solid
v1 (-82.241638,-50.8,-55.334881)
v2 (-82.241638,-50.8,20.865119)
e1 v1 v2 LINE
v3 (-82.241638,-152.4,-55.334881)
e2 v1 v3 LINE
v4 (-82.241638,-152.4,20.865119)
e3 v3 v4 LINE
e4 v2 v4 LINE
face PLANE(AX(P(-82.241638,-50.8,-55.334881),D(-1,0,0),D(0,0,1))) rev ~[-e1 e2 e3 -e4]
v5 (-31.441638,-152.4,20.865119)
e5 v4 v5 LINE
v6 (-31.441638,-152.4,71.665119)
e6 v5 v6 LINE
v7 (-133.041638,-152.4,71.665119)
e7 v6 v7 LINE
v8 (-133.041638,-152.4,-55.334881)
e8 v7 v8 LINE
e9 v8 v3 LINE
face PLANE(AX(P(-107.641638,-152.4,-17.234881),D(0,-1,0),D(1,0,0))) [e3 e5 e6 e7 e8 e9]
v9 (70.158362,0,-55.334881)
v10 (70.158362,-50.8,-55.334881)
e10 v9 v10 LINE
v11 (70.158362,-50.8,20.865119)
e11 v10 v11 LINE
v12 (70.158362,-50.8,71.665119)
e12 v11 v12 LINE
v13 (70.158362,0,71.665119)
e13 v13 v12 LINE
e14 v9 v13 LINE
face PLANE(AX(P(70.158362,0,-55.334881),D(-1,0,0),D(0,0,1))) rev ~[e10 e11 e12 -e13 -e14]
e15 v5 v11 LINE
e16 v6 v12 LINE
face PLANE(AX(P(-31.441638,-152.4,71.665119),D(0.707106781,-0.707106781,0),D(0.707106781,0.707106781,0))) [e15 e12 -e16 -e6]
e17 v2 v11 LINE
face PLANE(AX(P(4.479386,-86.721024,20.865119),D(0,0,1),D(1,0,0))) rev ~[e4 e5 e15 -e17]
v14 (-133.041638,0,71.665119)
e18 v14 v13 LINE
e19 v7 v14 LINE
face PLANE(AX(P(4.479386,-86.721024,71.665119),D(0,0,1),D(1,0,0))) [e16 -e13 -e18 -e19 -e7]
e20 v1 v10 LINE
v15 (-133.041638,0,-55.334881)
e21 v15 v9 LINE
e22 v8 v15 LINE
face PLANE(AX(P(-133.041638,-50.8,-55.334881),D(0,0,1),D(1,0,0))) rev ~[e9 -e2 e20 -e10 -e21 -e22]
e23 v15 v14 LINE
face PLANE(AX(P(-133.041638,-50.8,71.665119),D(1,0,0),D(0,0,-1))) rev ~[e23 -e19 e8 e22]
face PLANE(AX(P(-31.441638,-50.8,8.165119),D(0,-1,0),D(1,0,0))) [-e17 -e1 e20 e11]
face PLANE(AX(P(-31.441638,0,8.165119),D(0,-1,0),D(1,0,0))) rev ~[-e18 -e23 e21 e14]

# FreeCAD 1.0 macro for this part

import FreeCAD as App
import Part
import Sketcher
Q = App.Units.Quantity


def add_polygon(sketch, points):
    """Adds a closed chain of lines whose ends are joined by coincident constraints."""
    first, n = sketch.GeometryCount, len(points)
    for a, b in zip(points, points[1:] + points[:1]):
        sketch.addGeometry(Part.LineSegment(App.Vector(*a, 0), App.Vector(*b, 0)), False)
    for i in range(n):
        sketch.addConstraint(Sketcher.Constraint("Coincident", first + i, 2, first + (i + 1) % n, 1))

doc = App.newDocument("Part")
params = doc.addObject("Spreadsheet::Sheet", "Params")
for row, (alias, value) in enumerate([
    ("sketch1_width", "8 in"),
    ("sketch1_height", "5 in"),
    ("pad1_length", "2 in"),
    ("sketch2_width", "2 in"),
    ("sketch2_height", "3 in"),
    ("pad2_length", "4 in"),
    ("sketch3_width", "4 in"),
    ("pad3_length", "2 in"),
], start=1):
    params.set(f"A{row}", alias)
    params.set(f"B{row}", "=" + value)
    params.setAlias(f"B{row}", alias)

body = doc.addObject("PartDesign::Body", "Body")

sketch1 = body.newObject("Sketcher::SketchObject", "Sketch")
sketch1.AttachmentSupport = (doc.getObject("XZ_Plane"), [""])
sketch1.MapMode = "FlatFace"
add_polygon(sketch1, [(-133, 72), (-133, -55), (70, -55), (70, 72)])
sketch1.addConstraint([
    Sketcher.Constraint("Vertical", 0),
    Sketcher.Constraint("Horizontal", 1),
    Sketcher.Constraint("Vertical", 2),
    Sketcher.Constraint("Horizontal", 3),
    Sketcher.Constraint("DistanceX", 1, 1, 1, 2, Q("8 in")),
    Sketcher.Constraint("DistanceY", 0, 2, 0, 1, Q("5 in")),
    Sketcher.Constraint("DistanceX", 0, 2, -1, 1, 133.041638),
    Sketcher.Constraint("DistanceY", 0, 2, -1, 1, 55.334881),
])
sketch1.setExpression("Constraints[8]", "Params.sketch1_width")
sketch1.setExpression("Constraints[9]", "Params.sketch1_height")
pad1 = body.newObject("PartDesign::Pad", "Pad")
pad1.Profile = sketch1
pad1.setExpression("Length", "Params.pad1_length")

sketch2 = body.newObject("Sketcher::SketchObject", "Sketch001")
sketch2.AttachmentSupport = (doc.getObject("XZ_Plane"), [""])
sketch2.MapMode = "FlatFace"
sketch2.AttachmentOffset = App.Placement(App.Vector(0, 0, 2 * 25.4), App.Rotation())
add_polygon(sketch2, [(-133, -55), (-82, -55), (-82, 21), (-31, 21), (-31, 72), (-133, 72)])
sketch2.addConstraint([
    Sketcher.Constraint("Horizontal", 0),
    Sketcher.Constraint("Vertical", 1),
    Sketcher.Constraint("Horizontal", 2),
    Sketcher.Constraint("Vertical", 3),
    Sketcher.Constraint("Horizontal", 4),
    Sketcher.Constraint("Vertical", 5),
    Sketcher.Constraint("Equal", 0, 2),
    Sketcher.Constraint("Equal", 2, 3),
    Sketcher.Constraint("DistanceX", 0, 1, 0, 2, Q("2 in")),
    Sketcher.Constraint("DistanceY", 1, 1, 1, 2, Q("3 in")),
    Sketcher.Constraint("DistanceY", 0, 2, -1, 1, 55.334881),
    Sketcher.Constraint("DistanceX", 2, 2, -1, 1, 31.441638),
])
sketch2.setExpression("Constraints[14]", "Params.sketch2_width")
sketch2.setExpression("Constraints[15]", "Params.sketch2_height")
pad2 = body.newObject("PartDesign::Pad", "Pad001")
pad2.Profile = sketch2
pad2.setExpression("Length", "Params.pad2_length")

sketch3 = body.newObject("Sketcher::SketchObject", "Sketch002")
sketch3.AttachmentSupport = (doc.getObject("XY_Plane"), [""])
sketch3.MapMode = "FlatFace"
sketch3.AttachmentOffset = App.Placement(App.Vector(0, 0, 71.665119), App.Rotation())
add_polygon(sketch3, [(-31, -51), (-31, -152), (70, -51)])
sketch3.addConstraint([
    Sketcher.Constraint("Vertical", 0),
    Sketcher.Constraint("Horizontal", 2),
    Sketcher.Constraint("Equal", 2, 0),
    Sketcher.Constraint("DistanceX", 2, 2, 2, 1, Q("4 in")),
    Sketcher.Constraint("DistanceY", 0, 2, -1, 1, Q("6 in")),
    Sketcher.Constraint("DistanceX", 0, 2, -1, 1, 31.441638),
])
sketch3.setExpression("Constraints[6]", "Params.sketch3_width")
pad3 = body.newObject("PartDesign::Pad", "Pad002")
pad3.Profile = sketch3
pad3.setExpression("Length", "Params.pad3_length")
pad3.Reversed = True

doc.recompute()
